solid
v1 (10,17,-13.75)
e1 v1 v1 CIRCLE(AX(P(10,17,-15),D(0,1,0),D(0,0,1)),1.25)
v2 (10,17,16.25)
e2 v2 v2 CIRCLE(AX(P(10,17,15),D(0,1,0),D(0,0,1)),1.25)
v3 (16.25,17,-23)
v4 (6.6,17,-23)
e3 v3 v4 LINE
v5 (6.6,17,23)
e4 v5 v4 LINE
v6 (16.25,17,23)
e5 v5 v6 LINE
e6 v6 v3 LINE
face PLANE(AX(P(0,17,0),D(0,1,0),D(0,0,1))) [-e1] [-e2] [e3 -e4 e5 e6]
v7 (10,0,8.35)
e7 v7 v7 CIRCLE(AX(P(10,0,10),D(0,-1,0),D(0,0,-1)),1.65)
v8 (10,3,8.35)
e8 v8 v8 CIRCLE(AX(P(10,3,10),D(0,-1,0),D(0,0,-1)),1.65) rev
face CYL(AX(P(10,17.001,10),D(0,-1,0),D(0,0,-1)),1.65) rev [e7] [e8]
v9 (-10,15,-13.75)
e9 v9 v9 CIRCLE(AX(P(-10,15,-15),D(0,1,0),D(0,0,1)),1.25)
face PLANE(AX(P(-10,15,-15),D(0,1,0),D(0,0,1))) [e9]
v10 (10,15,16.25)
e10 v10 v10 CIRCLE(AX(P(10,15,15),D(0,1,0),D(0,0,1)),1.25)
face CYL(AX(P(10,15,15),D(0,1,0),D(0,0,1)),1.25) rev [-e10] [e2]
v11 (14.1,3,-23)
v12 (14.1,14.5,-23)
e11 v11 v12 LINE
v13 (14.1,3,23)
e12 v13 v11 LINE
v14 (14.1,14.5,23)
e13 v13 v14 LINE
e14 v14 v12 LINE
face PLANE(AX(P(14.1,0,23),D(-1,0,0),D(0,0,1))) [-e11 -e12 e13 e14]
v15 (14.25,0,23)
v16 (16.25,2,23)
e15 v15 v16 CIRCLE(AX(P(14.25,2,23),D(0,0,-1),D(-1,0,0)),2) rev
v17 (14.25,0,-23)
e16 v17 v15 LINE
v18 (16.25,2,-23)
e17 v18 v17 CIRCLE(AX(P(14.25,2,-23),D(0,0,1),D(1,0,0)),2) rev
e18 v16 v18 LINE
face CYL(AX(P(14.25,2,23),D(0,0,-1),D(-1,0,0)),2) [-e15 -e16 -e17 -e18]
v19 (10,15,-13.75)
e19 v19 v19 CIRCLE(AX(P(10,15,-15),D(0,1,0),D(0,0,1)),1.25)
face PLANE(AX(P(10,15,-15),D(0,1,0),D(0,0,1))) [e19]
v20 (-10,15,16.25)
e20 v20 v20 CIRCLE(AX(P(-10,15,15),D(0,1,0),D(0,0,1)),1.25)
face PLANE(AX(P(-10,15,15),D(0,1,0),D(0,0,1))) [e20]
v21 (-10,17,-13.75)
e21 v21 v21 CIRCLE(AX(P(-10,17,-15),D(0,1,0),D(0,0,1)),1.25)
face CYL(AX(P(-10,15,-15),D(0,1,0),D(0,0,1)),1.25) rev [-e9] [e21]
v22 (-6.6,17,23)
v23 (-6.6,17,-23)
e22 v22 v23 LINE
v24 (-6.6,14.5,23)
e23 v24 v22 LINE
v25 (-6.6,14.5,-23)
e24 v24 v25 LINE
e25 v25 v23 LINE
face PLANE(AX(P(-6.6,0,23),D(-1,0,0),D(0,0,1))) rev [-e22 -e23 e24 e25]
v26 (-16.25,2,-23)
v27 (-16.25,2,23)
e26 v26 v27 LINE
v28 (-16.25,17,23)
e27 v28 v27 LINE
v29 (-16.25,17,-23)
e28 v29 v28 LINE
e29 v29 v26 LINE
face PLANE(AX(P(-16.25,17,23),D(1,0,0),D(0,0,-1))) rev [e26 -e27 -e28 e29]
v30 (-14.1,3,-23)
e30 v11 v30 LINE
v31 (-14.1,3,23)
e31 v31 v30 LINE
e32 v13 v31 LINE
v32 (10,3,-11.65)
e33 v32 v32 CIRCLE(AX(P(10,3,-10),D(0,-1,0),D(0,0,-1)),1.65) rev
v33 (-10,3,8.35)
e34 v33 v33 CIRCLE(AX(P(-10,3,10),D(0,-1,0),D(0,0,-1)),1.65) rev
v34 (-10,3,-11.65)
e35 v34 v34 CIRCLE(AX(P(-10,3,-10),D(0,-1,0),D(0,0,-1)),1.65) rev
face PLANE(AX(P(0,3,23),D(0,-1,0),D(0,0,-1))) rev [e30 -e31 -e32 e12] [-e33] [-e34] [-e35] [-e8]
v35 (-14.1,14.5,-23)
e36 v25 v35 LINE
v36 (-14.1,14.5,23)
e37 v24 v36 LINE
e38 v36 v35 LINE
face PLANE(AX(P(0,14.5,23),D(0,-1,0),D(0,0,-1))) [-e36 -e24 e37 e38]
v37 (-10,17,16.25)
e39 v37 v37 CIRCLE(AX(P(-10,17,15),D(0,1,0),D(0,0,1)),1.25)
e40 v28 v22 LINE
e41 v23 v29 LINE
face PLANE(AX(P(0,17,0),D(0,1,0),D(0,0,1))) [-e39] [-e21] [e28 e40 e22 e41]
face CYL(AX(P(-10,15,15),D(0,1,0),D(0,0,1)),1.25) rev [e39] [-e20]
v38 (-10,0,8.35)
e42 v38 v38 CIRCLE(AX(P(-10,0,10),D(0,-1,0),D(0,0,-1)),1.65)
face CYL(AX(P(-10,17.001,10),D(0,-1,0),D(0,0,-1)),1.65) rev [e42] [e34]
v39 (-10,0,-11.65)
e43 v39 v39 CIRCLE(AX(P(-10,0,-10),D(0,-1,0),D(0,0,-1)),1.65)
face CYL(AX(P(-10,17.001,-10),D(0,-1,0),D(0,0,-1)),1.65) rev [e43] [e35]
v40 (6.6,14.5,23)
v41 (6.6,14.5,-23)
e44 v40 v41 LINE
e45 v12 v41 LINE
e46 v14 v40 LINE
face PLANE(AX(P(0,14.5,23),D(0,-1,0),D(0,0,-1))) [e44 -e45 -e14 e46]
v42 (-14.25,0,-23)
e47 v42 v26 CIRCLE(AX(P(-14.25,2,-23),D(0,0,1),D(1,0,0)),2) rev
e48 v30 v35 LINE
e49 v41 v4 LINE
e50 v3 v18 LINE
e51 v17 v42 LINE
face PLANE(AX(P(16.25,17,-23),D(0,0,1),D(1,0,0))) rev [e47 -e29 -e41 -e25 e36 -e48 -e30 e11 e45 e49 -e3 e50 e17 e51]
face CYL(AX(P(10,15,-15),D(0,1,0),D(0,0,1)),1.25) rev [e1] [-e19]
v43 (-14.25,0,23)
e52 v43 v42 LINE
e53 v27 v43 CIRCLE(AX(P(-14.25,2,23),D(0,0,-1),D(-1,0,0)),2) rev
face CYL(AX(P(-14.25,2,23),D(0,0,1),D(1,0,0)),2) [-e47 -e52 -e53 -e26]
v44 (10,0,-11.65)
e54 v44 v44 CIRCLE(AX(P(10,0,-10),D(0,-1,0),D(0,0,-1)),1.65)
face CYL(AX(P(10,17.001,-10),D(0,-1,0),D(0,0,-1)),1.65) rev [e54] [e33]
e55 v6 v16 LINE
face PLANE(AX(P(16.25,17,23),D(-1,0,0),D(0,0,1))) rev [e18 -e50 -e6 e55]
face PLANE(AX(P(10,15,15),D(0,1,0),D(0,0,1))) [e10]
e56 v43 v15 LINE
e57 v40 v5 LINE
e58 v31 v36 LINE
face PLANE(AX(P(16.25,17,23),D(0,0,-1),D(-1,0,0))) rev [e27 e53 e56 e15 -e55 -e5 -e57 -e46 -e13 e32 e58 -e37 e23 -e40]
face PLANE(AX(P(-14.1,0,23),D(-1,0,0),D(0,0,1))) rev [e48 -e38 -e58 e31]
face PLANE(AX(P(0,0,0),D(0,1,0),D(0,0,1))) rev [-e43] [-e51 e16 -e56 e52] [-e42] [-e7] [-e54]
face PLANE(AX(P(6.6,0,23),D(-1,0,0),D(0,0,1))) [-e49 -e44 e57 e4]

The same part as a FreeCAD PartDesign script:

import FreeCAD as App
import Part
import Sketcher
Q = App.Units.Quantity


def edges_at(feature, points):
    """Names of the edges that pass closest to the given points."""
    edges = feature.Shape.Edges
    near = lambda p: min(range(len(edges)), key=lambda i: edges[i].distToShape(Part.Vertex(*p))[0])
    return sorted({f"Edge{near(p) + 1}" for p in points})


def add_polygon(sketch, points):
    """Adds a closed chain of lines whose ends are joined by coincident constraints."""
    first, n = sketch.GeometryCount, len(points)
    for a, b in zip(points, points[1:] + points[:1]):
        sketch.addGeometry(Part.LineSegment(App.Vector(*a, 0), App.Vector(*b, 0)), False)
    for i in range(n):
        sketch.addConstraint(Sketcher.Constraint("Coincident", first + i, 2, first + (i + 1) % n, 1))

doc = App.newDocument("Part")
body = doc.addObject("PartDesign::Body", "Body")

# Sketch on XZ plane
sketch1 = body.newObject("Sketcher::SketchObject", "Sketch")
sketch1.AttachmentSupport = (doc.getObject("XZ_Plane"), [""])
sketch1.MapMode = "FlatFace"
add_polygon(sketch1, [(-16, -23), (-16, 23), (16, 23), (16, -23)])  # lines 0-3
sketch1.addConstraint([
    Sketcher.Constraint("Vertical", 0),
    Sketcher.Constraint("Horizontal", 1),
    Sketcher.Constraint("Vertical", 2),
    Sketcher.Constraint("Horizontal", 3),
    Sketcher.Constraint("Symmetric", 0, 2, 2, 2, -1, 1),
    Sketcher.Constraint("DistanceY", 0, 1, 0, 2, Q("46 mm")),
    Sketcher.Constraint("DistanceX", 1, 1, 1, 2, Q("32.5 mm")),
])
pad1 = body.newObject("PartDesign::Pad", "Pad")
pad1.Profile = sketch1
pad1.Length = 17
pad1.Reversed = True

# Sketch on XY plane
sketch2 = body.newObject("Sketcher::SketchObject", "Sketch001")
sketch2.AttachmentSupport = (doc.getObject("XY_Plane"), [""])
sketch2.MapMode = "FlatFace"
sketch2.AttachmentOffset = App.Placement(App.Vector(0, 0, -23), App.Rotation())
add_polygon(sketch2, [(6.6, 17), (6.6, 14.5), (14.1, 14.5), (14.1, 3), (-14.1, 3), (-14.1, 14.5), (-6.6, 14.5), (-6.6, 17)])  # lines 0-7
sketch2.addConstraint([
    Sketcher.Constraint("Vertical", 0),
    Sketcher.Constraint("Horizontal", 1),
    Sketcher.Constraint("Vertical", 2),
    Sketcher.Constraint("Horizontal", 3),
    Sketcher.Constraint("Vertical", 4),
    Sketcher.Constraint("Horizontal", 5),
    Sketcher.Constraint("Vertical", 6),
    Sketcher.Constraint("Horizontal", 7),
    Sketcher.Constraint("Symmetric", 1, 2, 4, 2, -2),
    Sketcher.Constraint("Equal", 1, 5),
    Sketcher.Constraint("DistanceX", 1, 1, 1, 2, Q("7.5 mm")),
    Sketcher.Constraint("DistanceX", 3, 2, 3, 1, Q("28.2 mm")),
    Sketcher.Constraint("DistanceY", 0, 2, 0, 1, Q("2.5 mm")),
    Sketcher.Constraint("DistanceY", 2, 2, 2, 1, Q("11.5 mm")),
    Sketcher.Constraint("DistanceY", -1, 1, 2, 2, Q("3 mm")),
])
pocket1 = body.newObject("PartDesign::Pocket", "Pocket")
pocket1.Profile = sketch2
pocket1.Type = "ThroughAll"
pocket1.Reversed = True

# Sketch on XZ plane
sketch3 = body.newObject("Sketcher::SketchObject", "Sketch002")
sketch3.AttachmentSupport = (doc.getObject("XZ_Plane"), [""])
sketch3.MapMode = "FlatFace"
sketch3.addGeometry(Part.Circle(App.Vector(-10, 10, 0), App.Vector(0, 0, 1), 1.6), False)
sketch3.addConstraint([
    Sketcher.Constraint("Diameter", 0, Q("3.3 mm")),
    Sketcher.Constraint("DistanceX", 0, 3, -1, 1, Q("10 mm")),
    Sketcher.Constraint("DistanceY", -1, 1, 0, 3, Q("10 mm")),
])
pocket2 = body.newObject("PartDesign::Pocket", "Pocket001")
pocket2.Profile = sketch3
pocket2.Type = "UpToFirst"

# Sketch on XZ plane
sketch4 = body.newObject("Sketcher::SketchObject", "Sketch003")
sketch4.AttachmentSupport = (doc.getObject("XZ_Plane"), [""])
sketch4.MapMode = "FlatFace"
sketch4.addGeometry(Part.Circle(App.Vector(10, 10, 0), App.Vector(0, 0, 1), 1.6), False)
sketch4.addConstraint([
    Sketcher.Constraint("Diameter", 0, Q("3.3 mm")),
    Sketcher.Constraint("DistanceX", -1, 1, 0, 3, Q("10 mm")),
    Sketcher.Constraint("DistanceY", -1, 1, 0, 3, Q("10 mm")),
])
pocket3 = body.newObject("PartDesign::Pocket", "Pocket002")
pocket3.Profile = sketch4
pocket3.Type = "UpToFirst"

# Sketch on XZ plane
sketch5 = body.newObject("Sketcher::SketchObject", "Sketch004")
sketch5.AttachmentSupport = (doc.getObject("XZ_Plane"), [""])
sketch5.MapMode = "FlatFace"
sketch5.addGeometry(Part.Circle(App.Vector(10, -10, 0), App.Vector(0, 0, 1), 1.6), False)
sketch5.addConstraint([
    Sketcher.Constraint("Diameter", 0, Q("3.3 mm")),
    Sketcher.Constraint("DistanceX", -1, 1, 0, 3, Q("10 mm")),
    Sketcher.Constraint("DistanceY", 0, 3, -1, 1, Q("10 mm")),
])
pocket4 = body.newObject("PartDesign::Pocket", "Pocket003")
pocket4.Profile = sketch5
pocket4.Type = "UpToFirst"

# Sketch on XZ plane
sketch6 = body.newObject("Sketcher::SketchObject", "Sketch005")
sketch6.AttachmentSupport = (doc.getObject("XZ_Plane"), [""])
sketch6.MapMode = "FlatFace"
sketch6.addGeometry(Part.Circle(App.Vector(-10, -10, 0), App.Vector(0, 0, 1), 1.6), False)
sketch6.addConstraint([
    Sketcher.Constraint("Diameter", 0, Q("3.3 mm")),
    Sketcher.Constraint("DistanceX", 0, 3, -1, 1, Q("10 mm")),
    Sketcher.Constraint("DistanceY", 0, 3, -1, 1, Q("10 mm")),
])
pocket5 = body.newObject("PartDesign::Pocket", "Pocket004")
pocket5.Profile = sketch6
pocket5.Type = "UpToFirst"

# Sketch on XZ plane
sketch7 = body.newObject("Sketcher::SketchObject", "Sketch006")
sketch7.AttachmentSupport = (doc.getObject("XZ_Plane"), [""])
sketch7.MapMode = "FlatFace"
sketch7.AttachmentOffset = App.Placement(App.Vector(0, 0, -17), App.Rotation())
sketch7.addGeometry([
    Part.Circle(App.Vector(-10, -15, 0), App.Vector(0, 0, 1), 1.2),
    Part.Circle(App.Vector(10, -15, 0), App.Vector(0, 0, 1), 1.2),
    Part.Circle(App.Vector(10, 15, 0), App.Vector(0, 0, 1), 1.2),
    Part.Circle(App.Vector(-10, 15, 0), App.Vector(0, 0, 1), 1.2),
], False)
sketch7.addConstraint([
    Sketcher.Constraint("Equal", 0, 1),
    Sketcher.Constraint("Equal", 1, 2),
    Sketcher.Constraint("Equal", 2, 3),
    Sketcher.Constraint("Symmetric", 0, 3, 2, 3, -1, 1),
    Sketcher.Constraint("Symmetric", 1, 3, 3, 3, -1, 1),
    Sketcher.Constraint("Symmetric", 0, 3, 1, 3, -2),
    Sketcher.Constraint("Diameter", 0, Q("2.5 mm")),
    Sketcher.Constraint("DistanceX", 0, 3, -1, 1, Q("10 mm")),
    Sketcher.Constraint("DistanceY", 0, 3, -1, 1, Q("15 mm")),
])
pocket6 = body.newObject("PartDesign::Pocket", "Pocket005")
pocket6.Profile = sketch7
pocket6.Length = 2
pocket6.Reversed = True
doc.recompute()

fillet = body.newObject("PartDesign::Fillet", "Fillet")
fillet.Base = (pocket6, edges_at(pocket6, [(16.25, 0, 0), (-16.25, 0, 0)]))
fillet.Radius = 2

doc.recompute()
